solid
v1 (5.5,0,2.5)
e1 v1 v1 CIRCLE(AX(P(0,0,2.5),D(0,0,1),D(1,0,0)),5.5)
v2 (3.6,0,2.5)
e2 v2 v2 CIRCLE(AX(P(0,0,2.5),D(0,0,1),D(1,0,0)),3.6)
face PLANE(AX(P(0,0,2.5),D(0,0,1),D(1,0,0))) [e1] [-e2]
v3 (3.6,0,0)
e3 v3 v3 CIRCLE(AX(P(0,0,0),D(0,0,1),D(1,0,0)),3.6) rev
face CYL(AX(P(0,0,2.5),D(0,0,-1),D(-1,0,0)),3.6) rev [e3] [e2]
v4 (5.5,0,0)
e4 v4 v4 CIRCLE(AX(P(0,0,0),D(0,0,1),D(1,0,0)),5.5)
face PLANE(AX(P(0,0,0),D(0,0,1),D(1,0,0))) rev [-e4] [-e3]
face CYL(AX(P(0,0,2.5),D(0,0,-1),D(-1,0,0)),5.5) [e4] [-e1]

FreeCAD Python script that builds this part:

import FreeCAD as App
import Part
import Sketcher

V = App.Vector
Q = App.Units.Quantity

doc = App.newDocument("Part")
body = doc.addObject("PartDesign::Body", "Body")

# Sketch on XY plane
sketch1 = body.newObject("Sketcher::SketchObject", "Sketch")
sketch1.AttachmentSupport = (doc.getObject("XY_Plane"), [""])
sketch1.MapMode = "FlatFace"
sketch1.addGeometry(Part.Circle(V(0, 0, 0), V(0, 0, 1), 6), False)
sketch1.addConstraint(Sketcher.Constraint("Coincident", 0, 3, -1, 1))
sketch1.addConstraint(Sketcher.Constraint("Diameter", 0, Q("11 mm")))
pad1 = body.newObject("PartDesign::Pad", "Pad")
pad1.Profile = sketch1
pad1.Length = 2.5
body2 = doc.addObject("PartDesign::Body", "Body001")

# Sketch on XY plane
sketch2 = body2.newObject("Sketcher::SketchObject", "Sketch001")
sketch2.AttachmentSupport = (doc.getObject("XY_Plane001"), [""])
sketch2.MapMode = "FlatFace"
sketch2.addGeometry(Part.Circle(V(0, 0, 0), V(0, 0, 1), 3.6), False)
sketch2.addConstraint(Sketcher.Constraint("Coincident", 0, 3, -1, 1))
sketch2.addConstraint(Sketcher.Constraint("Diameter", 0, Q("7.2 mm")))
pad2 = body2.newObject("PartDesign::Pad", "Pad001")
pad2.Profile = sketch2
pad2.Length = 5
body3 = doc.addObject("PartDesign::Body", "Body002")
doc.recompute()

body2.Placement = App.Placement(V(0, 0, -2.5), App.Rotation(V(0, 0, 1), 0))
boolean = body3.newObject("PartDesign::Boolean", "Boolean")
boolean.Type = "Fuse"
boolean.addObjects([body2])
doc.recompute()

boolean2 = body.newObject("PartDesign::Boolean", "Boolean001")
boolean2.Type = "Cut"
boolean2.addObjects([body3])

doc.recompute()
